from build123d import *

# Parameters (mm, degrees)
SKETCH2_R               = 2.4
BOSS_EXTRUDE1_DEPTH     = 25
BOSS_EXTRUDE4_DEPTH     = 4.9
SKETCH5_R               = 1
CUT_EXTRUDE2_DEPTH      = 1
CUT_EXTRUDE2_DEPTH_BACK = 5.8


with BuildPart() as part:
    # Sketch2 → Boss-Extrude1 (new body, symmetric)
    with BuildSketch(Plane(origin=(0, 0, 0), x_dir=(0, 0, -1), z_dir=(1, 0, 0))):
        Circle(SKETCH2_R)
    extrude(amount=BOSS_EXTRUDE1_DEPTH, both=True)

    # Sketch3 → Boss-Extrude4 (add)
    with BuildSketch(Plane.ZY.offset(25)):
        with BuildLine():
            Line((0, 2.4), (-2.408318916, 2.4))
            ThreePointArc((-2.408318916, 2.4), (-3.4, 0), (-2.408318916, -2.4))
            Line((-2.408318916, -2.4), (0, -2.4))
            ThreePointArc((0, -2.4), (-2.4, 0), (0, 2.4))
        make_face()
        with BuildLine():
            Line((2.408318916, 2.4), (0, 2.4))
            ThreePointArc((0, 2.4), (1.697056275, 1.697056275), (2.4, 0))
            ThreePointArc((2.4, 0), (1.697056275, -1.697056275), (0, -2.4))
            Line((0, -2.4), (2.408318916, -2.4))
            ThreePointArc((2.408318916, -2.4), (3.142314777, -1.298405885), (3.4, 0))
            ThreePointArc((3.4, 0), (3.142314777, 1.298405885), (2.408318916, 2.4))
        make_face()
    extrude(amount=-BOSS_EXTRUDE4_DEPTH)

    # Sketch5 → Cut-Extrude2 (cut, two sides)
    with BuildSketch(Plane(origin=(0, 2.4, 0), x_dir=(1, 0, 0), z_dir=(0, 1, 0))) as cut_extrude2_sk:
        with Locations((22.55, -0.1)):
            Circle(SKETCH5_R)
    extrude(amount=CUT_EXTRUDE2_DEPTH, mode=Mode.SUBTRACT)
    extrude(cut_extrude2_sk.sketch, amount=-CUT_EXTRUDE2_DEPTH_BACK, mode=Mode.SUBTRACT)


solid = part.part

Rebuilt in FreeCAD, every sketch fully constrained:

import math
import FreeCAD as App
import Part
import Sketcher
Q = App.Units.Quantity

doc = App.newDocument("Part")
body = doc.addObject("PartDesign::Body", "Body")

sketch1 = body.newObject("Sketcher::SketchObject", "Sketch")
sketch1.AttachmentSupport = (doc.getObject("YZ_Plane"), [""])
sketch1.MapMode = "FlatFace"
sketch1.addGeometry(Part.Circle(App.Vector(0, 0, 0), App.Vector(0, 0, 1), 2.4), False)
sketch1.addConstraint([
    Sketcher.Constraint("Coincident", 0, 3, -1, 1),
    Sketcher.Constraint("Diameter", 0, Q("4.8 mm")),
])
pad1 = body.newObject("PartDesign::Pad", "Pad")
pad1.Profile = sketch1
pad1.Length = 50
pad1.Midplane = True

sketch2 = body.newObject("Sketcher::SketchObject", "Sketch001")
sketch2.AttachmentSupport = (doc.getObject("YZ_Plane"), [""])
sketch2.MapMode = "FlatFace"
sketch2.AttachmentOffset = App.Placement(App.Vector(0, 0, -25), App.Rotation())
sketch2.addGeometry([
    Part.LineSegment(App.Vector(2.4, 0, 0), App.Vector(2.4, -2.4, 0)),
    Part.ArcOfCircle(Part.Circle(App.Vector(0, 0, 0), App.Vector(0, 0, 1), 3.4), math.radians(-135), math.radians(-45)),
    Part.LineSegment(App.Vector(-2.4, -2.4, 0), App.Vector(-2.4, 0, 0)),
    Part.ArcOfCircle(Part.Circle(App.Vector(0, 0, 0), App.Vector(0, 0, 1), 2.4), math.radians(180), math.radians(360)),
    Part.LineSegment(App.Vector(2.4, 2.4, 0), App.Vector(2.4, 0, 0)),
    Part.ArcOfCircle(Part.Circle(App.Vector(0, 0, 0), App.Vector(0, 0, 1), 2.4), math.radians(0), math.radians(90)),
    Part.ArcOfCircle(Part.Circle(App.Vector(0, 0, 0), App.Vector(0, 0, 1), 2.4), math.radians(90), math.radians(180)),
    Part.LineSegment(App.Vector(-2.4, 0, 0), App.Vector(-2.4, 2.4, 0)),
    Part.ArcOfCircle(Part.Circle(App.Vector(0, 0, 0), App.Vector(0, 0, 1), 3.4), math.radians(90), math.radians(135)),
    Part.ArcOfCircle(Part.Circle(App.Vector(0, 0, 0), App.Vector(0, 0, 1), 3.4), math.radians(45), math.radians(90)),
], False)
sketch2.addConstraint([
    Sketcher.Constraint("Coincident", 0, 2, 1, 2),
    Sketcher.Constraint("Coincident", 1, 1, 2, 1),
    Sketcher.Constraint("Tangent", 2, 2, 3, 1),
    Sketcher.Constraint("Tangent", 3, 2, 0, 1),
    Sketcher.Constraint("Tangent", 4, 2, 5, 1),
    Sketcher.Constraint("Tangent", 5, 2, 6, 1),
    Sketcher.Constraint("Tangent", 6, 2, 7, 1),
    Sketcher.Constraint("Coincident", 7, 2, 8, 2),
    Sketcher.Constraint("Tangent", 8, 1, 9, 2),
    Sketcher.Constraint("Coincident", 9, 1, 4, 1),
    Sketcher.Constraint("Vertical", 0),
    Sketcher.Constraint("Vertical", 2),
    Sketcher.Constraint("Vertical", 4),
    Sketcher.Constraint("Vertical", 7),
    Sketcher.Constraint("Coincident", 1, 3, -1, 1),
    Sketcher.Constraint("Coincident", 3, 3, -1, 1),
    Sketcher.Constraint("Coincident", 5, 3, -1, 1),
    Sketcher.Constraint("Coincident", 8, 3, -1, 1),
    Sketcher.Constraint("Coincident", 6, 2, 2, 2),
    Sketcher.Constraint("Equal", 1, 8),
    Sketcher.Constraint("Equal", 8, 9),
    Sketcher.Constraint("PointOnObject", 5, 2, -2),
    Sketcher.Constraint("PointOnObject", 8, 1, -2),
    Sketcher.Constraint("Radius", 1, Q("3.4 mm")),
    Sketcher.Constraint("Radius", 3, Q("2.4 mm")),
])
pad2 = body.newObject("PartDesign::Pad", "Pad001")
pad2.Profile = sketch2
pad2.Length = 4.9

sketch3 = body.newObject("Sketcher::SketchObject", "Sketch002")
sketch3.AttachmentSupport = (doc.getObject("XZ_Plane"), [""])
sketch3.MapMode = "FlatFace"
sketch3.AttachmentOffset = App.Placement(App.Vector(0, 0, -2.4), App.Rotation())
sketch3.addGeometry(Part.Circle(App.Vector(22.6, 0.1, 0), App.Vector(0, 0, 1), 1), False)
sketch3.addConstraint([
    Sketcher.Constraint("Diameter", 0, Q("2 mm")),
    Sketcher.Constraint("DistanceY", -1, 1, 0, 3, Q("0.1 mm")),
    Sketcher.Constraint("DistanceX", -1, 1, 0, 3, Q("22.55 mm")),
])
pocket1 = body.newObject("PartDesign::Pocket", "Pocket")
pocket1.Profile = sketch3
pocket1.Type = "ThroughAll"
pocket1.Midplane = True

doc.recompute()
